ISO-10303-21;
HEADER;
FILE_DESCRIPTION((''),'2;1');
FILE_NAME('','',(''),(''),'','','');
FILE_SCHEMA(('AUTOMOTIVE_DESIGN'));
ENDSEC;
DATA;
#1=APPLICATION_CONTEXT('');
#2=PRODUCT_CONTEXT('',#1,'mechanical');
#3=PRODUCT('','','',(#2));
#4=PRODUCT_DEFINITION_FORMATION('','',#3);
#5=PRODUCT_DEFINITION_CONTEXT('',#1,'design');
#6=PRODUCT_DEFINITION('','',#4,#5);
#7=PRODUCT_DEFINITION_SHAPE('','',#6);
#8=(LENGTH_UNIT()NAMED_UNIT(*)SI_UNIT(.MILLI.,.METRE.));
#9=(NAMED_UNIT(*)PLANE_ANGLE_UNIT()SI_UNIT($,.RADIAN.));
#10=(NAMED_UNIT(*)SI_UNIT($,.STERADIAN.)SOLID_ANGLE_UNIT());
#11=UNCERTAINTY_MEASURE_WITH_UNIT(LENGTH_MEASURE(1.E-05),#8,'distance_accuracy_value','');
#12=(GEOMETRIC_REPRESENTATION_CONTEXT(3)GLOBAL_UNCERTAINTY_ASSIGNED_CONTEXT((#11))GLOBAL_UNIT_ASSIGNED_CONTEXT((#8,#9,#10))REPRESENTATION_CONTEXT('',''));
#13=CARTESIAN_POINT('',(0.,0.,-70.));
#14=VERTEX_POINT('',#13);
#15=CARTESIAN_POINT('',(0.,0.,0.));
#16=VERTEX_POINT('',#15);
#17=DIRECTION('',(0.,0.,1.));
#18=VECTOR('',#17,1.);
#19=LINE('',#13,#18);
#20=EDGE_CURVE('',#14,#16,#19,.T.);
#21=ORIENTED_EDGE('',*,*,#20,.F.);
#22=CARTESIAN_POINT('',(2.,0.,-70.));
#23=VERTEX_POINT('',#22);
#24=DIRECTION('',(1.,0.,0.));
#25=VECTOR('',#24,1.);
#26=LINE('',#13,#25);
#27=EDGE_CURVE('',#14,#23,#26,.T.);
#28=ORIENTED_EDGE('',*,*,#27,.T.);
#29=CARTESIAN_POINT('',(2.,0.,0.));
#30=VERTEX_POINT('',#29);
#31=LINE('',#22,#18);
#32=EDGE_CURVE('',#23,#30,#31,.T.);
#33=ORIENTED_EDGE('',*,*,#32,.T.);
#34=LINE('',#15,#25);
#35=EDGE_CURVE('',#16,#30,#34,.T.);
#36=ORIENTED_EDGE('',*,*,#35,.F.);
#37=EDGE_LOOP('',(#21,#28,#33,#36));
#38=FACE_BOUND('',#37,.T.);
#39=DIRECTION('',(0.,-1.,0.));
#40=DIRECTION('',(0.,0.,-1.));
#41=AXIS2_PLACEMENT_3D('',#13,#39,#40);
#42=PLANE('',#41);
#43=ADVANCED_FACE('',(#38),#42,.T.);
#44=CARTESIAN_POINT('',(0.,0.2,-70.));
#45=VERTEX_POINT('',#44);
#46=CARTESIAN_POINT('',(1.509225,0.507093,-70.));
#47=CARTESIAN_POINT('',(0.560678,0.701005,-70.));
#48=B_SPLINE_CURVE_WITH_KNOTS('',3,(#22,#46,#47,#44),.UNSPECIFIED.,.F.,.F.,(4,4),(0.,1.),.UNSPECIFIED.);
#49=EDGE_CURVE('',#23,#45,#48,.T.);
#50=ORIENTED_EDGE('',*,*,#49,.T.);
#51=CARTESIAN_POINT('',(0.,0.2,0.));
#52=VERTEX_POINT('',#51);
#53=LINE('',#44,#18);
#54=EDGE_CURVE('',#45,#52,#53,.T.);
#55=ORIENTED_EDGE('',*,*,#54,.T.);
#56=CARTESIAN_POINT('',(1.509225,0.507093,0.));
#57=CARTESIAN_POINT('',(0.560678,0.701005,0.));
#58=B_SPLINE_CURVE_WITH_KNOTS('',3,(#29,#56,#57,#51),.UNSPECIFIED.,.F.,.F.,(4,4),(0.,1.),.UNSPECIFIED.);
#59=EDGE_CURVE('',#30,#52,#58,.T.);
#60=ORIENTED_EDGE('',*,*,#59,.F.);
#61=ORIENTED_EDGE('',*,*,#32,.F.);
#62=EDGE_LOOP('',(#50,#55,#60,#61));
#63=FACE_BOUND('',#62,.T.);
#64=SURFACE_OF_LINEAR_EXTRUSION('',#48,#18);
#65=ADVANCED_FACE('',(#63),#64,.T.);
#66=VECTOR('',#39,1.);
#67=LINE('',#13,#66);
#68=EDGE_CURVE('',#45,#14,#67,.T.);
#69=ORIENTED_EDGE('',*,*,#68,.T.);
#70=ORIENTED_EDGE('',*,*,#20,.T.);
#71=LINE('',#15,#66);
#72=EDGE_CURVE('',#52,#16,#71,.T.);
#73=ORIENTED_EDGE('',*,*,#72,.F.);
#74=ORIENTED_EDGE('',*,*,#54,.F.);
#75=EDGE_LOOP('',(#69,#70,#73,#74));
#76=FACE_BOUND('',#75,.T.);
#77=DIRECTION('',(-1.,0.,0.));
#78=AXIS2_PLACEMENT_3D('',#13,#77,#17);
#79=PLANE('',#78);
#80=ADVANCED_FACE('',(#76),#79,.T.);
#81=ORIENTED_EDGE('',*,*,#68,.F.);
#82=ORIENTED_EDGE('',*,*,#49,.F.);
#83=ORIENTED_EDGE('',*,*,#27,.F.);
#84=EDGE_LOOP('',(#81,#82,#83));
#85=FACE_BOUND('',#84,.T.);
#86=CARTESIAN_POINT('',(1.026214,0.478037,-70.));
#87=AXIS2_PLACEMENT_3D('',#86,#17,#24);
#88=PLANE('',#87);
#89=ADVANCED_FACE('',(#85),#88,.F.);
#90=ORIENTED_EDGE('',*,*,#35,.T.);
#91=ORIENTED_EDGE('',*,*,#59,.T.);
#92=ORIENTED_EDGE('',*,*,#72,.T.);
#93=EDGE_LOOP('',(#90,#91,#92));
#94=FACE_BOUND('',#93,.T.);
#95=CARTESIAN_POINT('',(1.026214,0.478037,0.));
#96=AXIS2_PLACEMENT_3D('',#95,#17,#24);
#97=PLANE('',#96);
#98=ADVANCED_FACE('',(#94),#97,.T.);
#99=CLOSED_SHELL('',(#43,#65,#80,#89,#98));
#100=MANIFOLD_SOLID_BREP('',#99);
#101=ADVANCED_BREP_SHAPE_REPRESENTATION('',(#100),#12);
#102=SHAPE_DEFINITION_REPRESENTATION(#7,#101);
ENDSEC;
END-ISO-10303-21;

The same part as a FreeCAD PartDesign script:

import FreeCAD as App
import Part
import Sketcher
from FreeCAD import Vector

doc = App.newDocument("Part")
params = doc.addObject("Spreadsheet::Sheet", "Params")
for row, (alias, value) in enumerate([
    ("pad1_length", "70 mm"),
], start=1):
    params.set(f"A{row}", alias)
    params.set(f"B{row}", "=" + value)
    params.setAlias(f"B{row}", alias)

body = doc.addObject("PartDesign::Body", "Body")

# Sketch on XY plane
sketch1 = doc.addObject("Sketcher::SketchObject", "Sketch")
body.addObject(sketch1)
sketch1.AttachmentSupport = (doc.XY_Plane, [""])
sketch1.MapMode = "FlatFace"
sketch1.addGeometry([
    Part.LineSegment(Vector(0, 0, 0), Vector(2, 0, 0)),
    Part.BSplineCurve([Vector(0, 0.2, 0), Vector(0.560678, 0.701005, 0), Vector(1.509225, 0.507093, 0), Vector(2, 0, 0)], [4, 4], [0, 1], False, 3, [1, 1, 1, 1], False),
    Part.LineSegment(Vector(0, 0.2, 0), Vector(0, 0, 0)),
], False)
sketch1.addConstraint([
    Sketcher.Constraint("Block", 1),
    Sketcher.Constraint("Coincident", 0, 2, 1, 2),
    Sketcher.Constraint("Coincident", 1, 1, 2, 1),
    Sketcher.Constraint("Coincident", 2, 2, 0, 1),
    Sketcher.Constraint("Horizontal", 0),
    Sketcher.Constraint("Vertical", 2),
])
pad1 = doc.addObject("PartDesign::Pad", "Pad")
body.addObject(pad1)
pad1.Profile = sketch1
pad1.setExpression("Length", "Params.pad1_length")
pad1.Reversed = True

doc.recompute()
